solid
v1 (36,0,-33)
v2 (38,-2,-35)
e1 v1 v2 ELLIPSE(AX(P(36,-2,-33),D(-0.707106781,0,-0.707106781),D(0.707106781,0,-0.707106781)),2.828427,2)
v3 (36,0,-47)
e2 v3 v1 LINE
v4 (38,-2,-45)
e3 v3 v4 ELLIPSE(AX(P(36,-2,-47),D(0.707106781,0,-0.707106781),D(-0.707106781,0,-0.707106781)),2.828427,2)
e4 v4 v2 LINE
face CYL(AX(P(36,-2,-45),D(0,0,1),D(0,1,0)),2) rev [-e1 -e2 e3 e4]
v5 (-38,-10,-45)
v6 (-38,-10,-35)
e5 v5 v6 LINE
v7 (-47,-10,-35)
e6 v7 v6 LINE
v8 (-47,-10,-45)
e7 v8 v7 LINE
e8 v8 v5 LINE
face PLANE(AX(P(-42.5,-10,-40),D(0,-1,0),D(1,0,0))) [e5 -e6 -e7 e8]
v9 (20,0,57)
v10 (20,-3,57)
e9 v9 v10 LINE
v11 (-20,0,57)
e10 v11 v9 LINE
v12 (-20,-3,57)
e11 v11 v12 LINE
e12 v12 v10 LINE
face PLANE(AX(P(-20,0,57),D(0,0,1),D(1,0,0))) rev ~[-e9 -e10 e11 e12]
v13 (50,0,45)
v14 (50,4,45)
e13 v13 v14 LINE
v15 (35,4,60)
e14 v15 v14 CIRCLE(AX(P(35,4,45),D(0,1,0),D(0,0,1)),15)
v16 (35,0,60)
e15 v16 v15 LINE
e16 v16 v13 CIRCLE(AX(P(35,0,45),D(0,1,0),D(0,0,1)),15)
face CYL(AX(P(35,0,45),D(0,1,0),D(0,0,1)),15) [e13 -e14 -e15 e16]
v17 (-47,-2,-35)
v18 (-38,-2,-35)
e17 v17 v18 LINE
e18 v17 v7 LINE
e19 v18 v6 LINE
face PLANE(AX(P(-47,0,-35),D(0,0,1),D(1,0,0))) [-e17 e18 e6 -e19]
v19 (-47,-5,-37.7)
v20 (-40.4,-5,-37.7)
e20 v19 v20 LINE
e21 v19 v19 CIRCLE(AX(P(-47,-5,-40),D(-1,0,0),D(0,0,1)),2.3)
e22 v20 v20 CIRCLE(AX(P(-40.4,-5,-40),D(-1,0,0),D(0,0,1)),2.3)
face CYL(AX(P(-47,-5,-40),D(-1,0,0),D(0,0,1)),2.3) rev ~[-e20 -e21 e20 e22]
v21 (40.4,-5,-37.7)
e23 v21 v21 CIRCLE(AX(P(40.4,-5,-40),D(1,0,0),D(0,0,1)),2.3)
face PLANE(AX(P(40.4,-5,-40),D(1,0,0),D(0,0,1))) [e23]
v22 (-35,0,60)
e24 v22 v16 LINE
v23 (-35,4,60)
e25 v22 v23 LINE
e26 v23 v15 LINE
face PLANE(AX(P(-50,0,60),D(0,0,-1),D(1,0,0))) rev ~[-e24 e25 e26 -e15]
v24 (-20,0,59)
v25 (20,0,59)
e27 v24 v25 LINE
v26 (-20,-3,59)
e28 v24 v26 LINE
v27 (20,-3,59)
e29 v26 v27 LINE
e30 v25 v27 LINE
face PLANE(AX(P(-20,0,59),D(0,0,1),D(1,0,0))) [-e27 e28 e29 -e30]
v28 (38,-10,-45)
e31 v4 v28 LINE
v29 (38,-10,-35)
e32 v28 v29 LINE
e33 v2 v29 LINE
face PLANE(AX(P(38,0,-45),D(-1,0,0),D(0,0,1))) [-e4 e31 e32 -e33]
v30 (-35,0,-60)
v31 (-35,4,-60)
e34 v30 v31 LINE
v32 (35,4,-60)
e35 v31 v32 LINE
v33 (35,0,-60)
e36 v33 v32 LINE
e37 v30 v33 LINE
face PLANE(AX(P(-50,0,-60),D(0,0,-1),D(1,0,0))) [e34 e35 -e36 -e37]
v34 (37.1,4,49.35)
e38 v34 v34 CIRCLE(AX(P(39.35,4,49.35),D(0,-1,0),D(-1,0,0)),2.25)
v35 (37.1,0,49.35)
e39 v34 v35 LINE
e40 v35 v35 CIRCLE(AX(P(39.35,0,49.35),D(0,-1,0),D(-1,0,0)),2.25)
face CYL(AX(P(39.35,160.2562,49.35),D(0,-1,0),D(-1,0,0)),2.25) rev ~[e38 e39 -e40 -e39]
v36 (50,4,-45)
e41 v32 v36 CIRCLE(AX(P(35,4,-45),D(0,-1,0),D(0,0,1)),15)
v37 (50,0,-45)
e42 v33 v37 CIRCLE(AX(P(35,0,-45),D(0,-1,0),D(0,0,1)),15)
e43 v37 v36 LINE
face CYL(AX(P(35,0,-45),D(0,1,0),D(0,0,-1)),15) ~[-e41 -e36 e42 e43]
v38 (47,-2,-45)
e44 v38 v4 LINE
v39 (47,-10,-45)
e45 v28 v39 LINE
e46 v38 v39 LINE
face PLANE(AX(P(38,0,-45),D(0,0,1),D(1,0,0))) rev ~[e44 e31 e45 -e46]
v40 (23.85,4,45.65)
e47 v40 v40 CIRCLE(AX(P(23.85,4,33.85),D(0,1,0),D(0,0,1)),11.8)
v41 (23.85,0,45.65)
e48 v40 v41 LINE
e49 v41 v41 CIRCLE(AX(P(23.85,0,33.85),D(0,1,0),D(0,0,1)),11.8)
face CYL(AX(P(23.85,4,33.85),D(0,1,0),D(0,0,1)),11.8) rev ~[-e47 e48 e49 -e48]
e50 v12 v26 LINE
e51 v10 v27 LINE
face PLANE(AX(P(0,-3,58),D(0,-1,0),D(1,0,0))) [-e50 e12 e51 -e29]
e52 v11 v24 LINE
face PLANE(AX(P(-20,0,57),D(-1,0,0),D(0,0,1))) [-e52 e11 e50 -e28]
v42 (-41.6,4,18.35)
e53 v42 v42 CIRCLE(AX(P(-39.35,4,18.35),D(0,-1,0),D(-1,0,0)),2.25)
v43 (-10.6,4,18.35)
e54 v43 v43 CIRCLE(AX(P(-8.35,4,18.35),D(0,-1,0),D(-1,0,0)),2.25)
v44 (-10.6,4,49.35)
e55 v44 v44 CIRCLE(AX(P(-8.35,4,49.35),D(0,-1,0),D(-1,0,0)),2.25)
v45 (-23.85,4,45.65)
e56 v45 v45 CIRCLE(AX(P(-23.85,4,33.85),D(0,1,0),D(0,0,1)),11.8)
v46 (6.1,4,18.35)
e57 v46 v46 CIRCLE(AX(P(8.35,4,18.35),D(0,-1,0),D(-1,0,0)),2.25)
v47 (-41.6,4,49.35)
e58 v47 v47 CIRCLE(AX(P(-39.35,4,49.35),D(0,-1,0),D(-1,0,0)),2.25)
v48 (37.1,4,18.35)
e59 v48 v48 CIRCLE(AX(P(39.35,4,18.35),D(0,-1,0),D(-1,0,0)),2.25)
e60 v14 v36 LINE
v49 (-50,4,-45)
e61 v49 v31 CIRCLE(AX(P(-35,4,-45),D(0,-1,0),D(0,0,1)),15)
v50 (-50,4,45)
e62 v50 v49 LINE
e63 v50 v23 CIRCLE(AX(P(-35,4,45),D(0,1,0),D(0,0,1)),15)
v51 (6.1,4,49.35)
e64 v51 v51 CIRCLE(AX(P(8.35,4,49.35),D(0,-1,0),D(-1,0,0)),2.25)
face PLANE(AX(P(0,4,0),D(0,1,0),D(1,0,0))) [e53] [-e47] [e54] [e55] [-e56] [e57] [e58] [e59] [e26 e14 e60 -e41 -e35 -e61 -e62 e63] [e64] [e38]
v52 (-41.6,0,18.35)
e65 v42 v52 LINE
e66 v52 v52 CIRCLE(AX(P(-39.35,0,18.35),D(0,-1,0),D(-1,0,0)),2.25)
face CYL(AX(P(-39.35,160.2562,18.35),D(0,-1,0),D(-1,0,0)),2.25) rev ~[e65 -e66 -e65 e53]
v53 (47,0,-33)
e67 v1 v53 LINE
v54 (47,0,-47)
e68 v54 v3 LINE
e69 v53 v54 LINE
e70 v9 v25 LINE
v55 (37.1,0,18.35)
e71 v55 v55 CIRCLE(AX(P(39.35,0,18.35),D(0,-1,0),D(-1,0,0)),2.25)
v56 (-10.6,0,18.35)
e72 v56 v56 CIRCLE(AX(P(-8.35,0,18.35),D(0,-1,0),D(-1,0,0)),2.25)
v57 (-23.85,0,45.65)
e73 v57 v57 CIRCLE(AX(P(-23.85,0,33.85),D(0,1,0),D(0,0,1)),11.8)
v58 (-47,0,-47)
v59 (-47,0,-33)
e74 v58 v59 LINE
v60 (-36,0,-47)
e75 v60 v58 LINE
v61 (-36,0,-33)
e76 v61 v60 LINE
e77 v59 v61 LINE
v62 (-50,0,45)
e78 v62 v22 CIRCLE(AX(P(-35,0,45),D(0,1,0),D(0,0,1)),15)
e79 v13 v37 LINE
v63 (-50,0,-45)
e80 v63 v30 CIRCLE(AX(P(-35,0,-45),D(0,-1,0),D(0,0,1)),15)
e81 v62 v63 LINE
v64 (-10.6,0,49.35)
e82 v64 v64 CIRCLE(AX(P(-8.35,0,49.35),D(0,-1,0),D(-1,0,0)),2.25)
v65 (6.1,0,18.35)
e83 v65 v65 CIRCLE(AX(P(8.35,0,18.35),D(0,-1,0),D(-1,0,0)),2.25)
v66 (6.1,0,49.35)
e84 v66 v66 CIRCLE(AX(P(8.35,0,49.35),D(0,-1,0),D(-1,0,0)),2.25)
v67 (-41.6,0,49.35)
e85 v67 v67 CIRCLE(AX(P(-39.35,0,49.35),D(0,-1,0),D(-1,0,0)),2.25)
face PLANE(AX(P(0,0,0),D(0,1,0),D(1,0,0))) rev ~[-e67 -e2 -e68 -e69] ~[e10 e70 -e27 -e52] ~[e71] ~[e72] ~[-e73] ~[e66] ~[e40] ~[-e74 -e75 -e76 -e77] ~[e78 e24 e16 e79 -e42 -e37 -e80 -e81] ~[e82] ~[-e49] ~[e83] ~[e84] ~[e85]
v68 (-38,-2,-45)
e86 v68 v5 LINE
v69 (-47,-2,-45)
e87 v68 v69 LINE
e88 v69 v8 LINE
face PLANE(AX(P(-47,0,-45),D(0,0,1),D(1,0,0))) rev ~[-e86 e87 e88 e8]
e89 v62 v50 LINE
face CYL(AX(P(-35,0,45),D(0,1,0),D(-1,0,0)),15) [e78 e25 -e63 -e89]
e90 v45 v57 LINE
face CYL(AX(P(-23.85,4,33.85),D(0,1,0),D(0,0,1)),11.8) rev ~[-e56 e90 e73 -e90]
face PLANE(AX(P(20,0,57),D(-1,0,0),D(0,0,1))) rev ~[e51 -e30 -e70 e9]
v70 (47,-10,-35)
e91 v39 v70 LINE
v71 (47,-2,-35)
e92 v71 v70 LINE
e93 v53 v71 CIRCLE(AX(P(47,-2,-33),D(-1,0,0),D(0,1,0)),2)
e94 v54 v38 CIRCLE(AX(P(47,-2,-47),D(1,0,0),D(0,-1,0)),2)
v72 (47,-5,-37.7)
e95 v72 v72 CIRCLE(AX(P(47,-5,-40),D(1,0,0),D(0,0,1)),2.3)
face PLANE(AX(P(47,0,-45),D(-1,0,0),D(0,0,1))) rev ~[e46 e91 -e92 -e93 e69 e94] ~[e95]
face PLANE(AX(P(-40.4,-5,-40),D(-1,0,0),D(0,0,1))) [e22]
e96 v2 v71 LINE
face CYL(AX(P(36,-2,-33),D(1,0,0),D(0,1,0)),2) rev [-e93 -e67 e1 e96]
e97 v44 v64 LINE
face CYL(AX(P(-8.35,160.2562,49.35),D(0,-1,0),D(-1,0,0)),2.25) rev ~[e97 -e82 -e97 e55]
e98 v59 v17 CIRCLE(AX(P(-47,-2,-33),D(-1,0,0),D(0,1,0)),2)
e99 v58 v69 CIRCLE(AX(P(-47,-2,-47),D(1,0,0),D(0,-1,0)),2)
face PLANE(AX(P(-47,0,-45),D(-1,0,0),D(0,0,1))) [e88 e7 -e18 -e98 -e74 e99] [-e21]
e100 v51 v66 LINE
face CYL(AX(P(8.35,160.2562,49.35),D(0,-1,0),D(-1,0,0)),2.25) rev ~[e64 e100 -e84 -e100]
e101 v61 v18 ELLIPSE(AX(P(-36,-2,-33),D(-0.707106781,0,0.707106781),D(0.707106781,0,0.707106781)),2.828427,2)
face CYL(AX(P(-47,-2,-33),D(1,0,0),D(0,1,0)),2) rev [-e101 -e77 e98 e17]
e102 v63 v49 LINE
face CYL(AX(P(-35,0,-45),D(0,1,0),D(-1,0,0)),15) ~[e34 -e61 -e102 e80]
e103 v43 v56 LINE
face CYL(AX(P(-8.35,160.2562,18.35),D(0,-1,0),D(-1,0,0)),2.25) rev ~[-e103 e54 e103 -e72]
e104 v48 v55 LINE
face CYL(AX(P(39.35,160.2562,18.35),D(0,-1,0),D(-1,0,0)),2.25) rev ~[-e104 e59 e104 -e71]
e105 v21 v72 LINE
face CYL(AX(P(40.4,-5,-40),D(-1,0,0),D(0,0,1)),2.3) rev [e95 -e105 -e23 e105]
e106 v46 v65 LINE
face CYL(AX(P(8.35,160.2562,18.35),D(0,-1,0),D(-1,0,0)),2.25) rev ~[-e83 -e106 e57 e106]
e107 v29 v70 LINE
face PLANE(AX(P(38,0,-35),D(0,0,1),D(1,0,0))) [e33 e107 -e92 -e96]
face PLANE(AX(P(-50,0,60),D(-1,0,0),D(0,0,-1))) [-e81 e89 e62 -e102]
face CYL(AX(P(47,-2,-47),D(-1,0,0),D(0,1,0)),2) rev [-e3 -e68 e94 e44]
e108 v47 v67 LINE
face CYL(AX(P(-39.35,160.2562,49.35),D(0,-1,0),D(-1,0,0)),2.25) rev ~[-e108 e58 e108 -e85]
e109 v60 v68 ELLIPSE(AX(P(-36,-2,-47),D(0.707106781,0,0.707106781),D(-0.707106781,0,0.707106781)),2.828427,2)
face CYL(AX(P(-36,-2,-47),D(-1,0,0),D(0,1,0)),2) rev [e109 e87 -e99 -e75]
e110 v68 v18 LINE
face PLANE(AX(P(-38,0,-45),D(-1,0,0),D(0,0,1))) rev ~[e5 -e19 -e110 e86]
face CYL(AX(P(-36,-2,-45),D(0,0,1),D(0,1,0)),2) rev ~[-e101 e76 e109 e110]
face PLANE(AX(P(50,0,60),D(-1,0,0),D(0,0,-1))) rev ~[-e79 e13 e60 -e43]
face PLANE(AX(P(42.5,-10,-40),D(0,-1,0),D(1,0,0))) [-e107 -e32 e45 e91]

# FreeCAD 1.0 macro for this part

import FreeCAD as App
import Part
import Sketcher
from FreeCAD import Vector


def edges_at(feature, points):
    """Names of the edges that pass closest to the given points."""
    edges = feature.Shape.Edges
    near = lambda p: min(range(len(edges)), key=lambda i: edges[i].distToShape(Part.Vertex(*p))[0])
    return sorted({f"Edge{near(p) + 1}" for p in points})


def add_polygon(sketch, points):
    """Adds a closed chain of lines whose ends are joined by coincident constraints."""
    first, n = sketch.GeometryCount, len(points)
    for a, b in zip(points, points[1:] + points[:1]):
        sketch.addGeometry(Part.LineSegment(App.Vector(*a, 0), App.Vector(*b, 0)), False)
    for i in range(n):
        sketch.addConstraint(Sketcher.Constraint("Coincident", first + i, 2, first + (i + 1) % n, 1))

doc = App.newDocument("Part")
params = doc.addObject("Spreadsheet::Sheet", "Params")
for row, (alias, value) in enumerate([
    ("sketch1_width", "100 mm"),
    ("sketch1_height", "120 mm"),
    ("pad1_length", "4 mm"),
    ("sketch2_diameter", "4.5 mm"),
    ("hole_diameter", "4.5 mm"),
    ("sketch3_diameter", "23.6 mm"),
    ("fillet_radius", "15 mm"),
    ("sketch4_width", "9 mm"),
    ("sketch4_height", "10 mm"),
    ("pad2_length", "10 mm"),
    ("sketch5_width", "40 mm"),
    ("sketch5_height", "2 mm"),
    ("pad3_length", "3 mm"),
    ("sketch6_diameter", "4.6 mm"),
    ("pocket2_length", "6.6 mm"),
    ("sketch7_diameter", "4.6 mm"),
    ("pocket3_length", "6.6 mm"),
    ("fillet2_radius", "2 mm"),
    ("fillet3_radius", "2 mm"),
    ("fillet4_radius", "2 mm"),
    ("fillet5_radius", "2 mm"),
    ("fillet6_radius", "2 mm"),
    ("fillet7_radius", "2 mm"),
], start=1):
    params.set(f"A{row}", alias)
    params.set(f"B{row}", "=" + value)
    params.setAlias(f"B{row}", alias)

body = doc.addObject("PartDesign::Body", "Body")

# Sketch on XZ plane
sketch1 = body.newObject("Sketcher::SketchObject", "Sketch")
sketch1.AttachmentSupport = (doc.getObject("XZ_Plane"), [""])
sketch1.MapMode = "FlatFace"
add_polygon(sketch1, [(-50, -60), (-50, 60), (50, 60), (50, -60)])  # lines 0-3
sketch1.addConstraint([
    Sketcher.Constraint("Vertical", 0),
    Sketcher.Constraint("Horizontal", 1),
    Sketcher.Constraint("Vertical", 2),
    Sketcher.Constraint("Horizontal", 3),
    Sketcher.Constraint("Symmetric", 0, 2, 2, 2, -1, 1),
    Sketcher.Constraint("DistanceX", 1, 1, 1, 2, 100.0),
    Sketcher.Constraint("DistanceY", 0, 1, 0, 2, 120.0),
])
sketch1.setExpression("Constraints[9]", "Params.sketch1_width")
sketch1.setExpression("Constraints[10]", "Params.sketch1_height")
pad1 = body.newObject("PartDesign::Pad", "Pad")
pad1.Profile = sketch1
pad1.setExpression("Length", "Params.pad1_length")
pad1.Reversed = True

# Sketch on XZ plane
sketch2 = body.newObject("Sketcher::SketchObject", "Sketch001")
sketch2.AttachmentSupport = (doc.getObject("XZ_Plane"), [""])
sketch2.MapMode = "FlatFace"
sketch2.AttachmentOffset = App.Placement(Vector(0, 0, -4), App.Rotation())
sketch2.addGeometry([
    Part.Circle(Vector(-8.35, 18.35, 0), Vector(0, 0, 1), 2.25),  # 0
    Part.Circle(Vector(-39.35, 18.35, 0), Vector(0, 0, 1), 2.25),  # 1
    Part.Circle(Vector(-39.35, 49.35, 0), Vector(0, 0, 1), 2.25),  # 2
    Part.Circle(Vector(-8.35, 49.35, 0), Vector(0, 0, 1), 2.25),  # 3
    Part.Circle(Vector(8.35, 18.35, 0), Vector(0, 0, 1), 2.25),  # 4
    Part.Circle(Vector(39.35, 18.35, 0), Vector(0, 0, 1), 2.25),  # 5
    Part.Circle(Vector(39.35, 49.35, 0), Vector(0, 0, 1), 2.25),  # 6
    Part.Circle(Vector(8.35, 49.35, 0), Vector(0, 0, 1), 2.25),  # 7
], False)
sketch2.addConstraint([
    Sketcher.Constraint("Equal", 0, 1),
    Sketcher.Constraint("Equal", 1, 2),
    Sketcher.Constraint("Equal", 2, 3),
    Sketcher.Constraint("Equal", 3, 4),
    Sketcher.Constraint("Equal", 4, 5),
    Sketcher.Constraint("Equal", 5, 6),
    Sketcher.Constraint("Equal", 6, 7),
    Sketcher.Constraint("Symmetric", 0, 3, 4, 3, -2),
    Sketcher.Constraint("Symmetric", 1, 3, 5, 3, -2),
    Sketcher.Constraint("Symmetric", 2, 3, 6, 3, -2),
    Sketcher.Constraint("Symmetric", 3, 3, 7, 3, -2),
    Sketcher.Constraint("Horizontal", 0, 3, 1, 3),
    Sketcher.Constraint("Horizontal", 2, 3, 3, 3),
    Sketcher.Constraint("Vertical", 1, 3, 2, 3),
    Sketcher.Constraint("Vertical", 0, 3, 3, 3),
    Sketcher.Constraint("Diameter", 0, 4.5),
    Sketcher.Constraint("DistanceX", 1, 3, 0, 3, 31.0),
    Sketcher.Constraint("DistanceY", 1, 3, 2, 3, 31.0),
    Sketcher.Constraint("DistanceX", 0, 3, 4, 3, 16.7),
    Sketcher.Constraint("DistanceY", -1, 1, 0, 3, 18.35),
])
sketch2.setExpression("Constraints[15]", "Params.sketch2_diameter")
doc.recompute()
hole = body.newObject("PartDesign::Hole", "Hole")
hole.Profile = sketch2
hole.ThreadType = "None"
hole.setExpression("Diameter", "Params.hole_diameter")
hole.DepthType = "ThroughAll"
hole.Reversed = True

# Sketch on XZ plane
sketch3 = body.newObject("Sketcher::SketchObject", "Sketch002")
sketch3.AttachmentSupport = (doc.getObject("XZ_Plane"), [""])
sketch3.MapMode = "FlatFace"
sketch3.AttachmentOffset = App.Placement(Vector(0, 0, -4), App.Rotation())
sketch3.addGeometry([
    Part.Circle(Vector(-23.85, 33.85, 0), Vector(0, 0, 1), 11.8),
    Part.Circle(Vector(23.85, 33.85, 0), Vector(0, 0, 1), 11.8),
], False)
sketch3.addConstraint([
    Sketcher.Constraint("Equal", 0, 1),
    Sketcher.Constraint("Symmetric", 0, 3, 1, 3, -2),
    Sketcher.Constraint("Diameter", 0, 23.6),
    Sketcher.Constraint("DistanceX", 0, 3, 1, 3, 47.7),
    Sketcher.Constraint("DistanceY", -1, 1, 0, 3, 33.85),
])
sketch3.setExpression("Constraints[2]", "Params.sketch3_diameter")
pocket1 = body.newObject("PartDesign::Pocket", "Pocket")
pocket1.Profile = sketch3
pocket1.Type = "ThroughAll"
pocket1.Reversed = True
doc.recompute()

fillet = body.newObject("PartDesign::Fillet", "Fillet")
fillet.Base = (pocket1, edges_at(pocket1, [
    (50, 2, 60),
    (-50, 2, 60),
    (-50, 2, -60),
    (50, 2, -60),
]))
fillet.setExpression("Radius", "Params.fillet_radius")

# Sketch on XZ plane
sketch4 = body.newObject("Sketcher::SketchObject", "Sketch003")
sketch4.AttachmentSupport = (doc.getObject("XZ_Plane"), [""])
sketch4.MapMode = "FlatFace"
add_polygon(sketch4, [(-47, -35), (-47, -45), (-38, -45), (-38, -35)])  # lines 0-3
add_polygon(sketch4, [(38, -35), (38, -45), (47, -45), (47, -35)])  # lines 4-7
sketch4.addConstraint([
    Sketcher.Constraint("Vertical", 0),
    Sketcher.Constraint("Horizontal", 1),
    Sketcher.Constraint("Vertical", 2),
    Sketcher.Constraint("Horizontal", 3),
    Sketcher.Constraint("Vertical", 4),
    Sketcher.Constraint("Horizontal", 5),
    Sketcher.Constraint("Vertical", 6),
    Sketcher.Constraint("Horizontal", 7),
    Sketcher.Constraint("Symmetric", 1, 2, 4, 2, -2),
    Sketcher.Constraint("Symmetric", 3, 2, 6, 2, -2),
    Sketcher.Constraint("DistanceX", 1, 1, 1, 2, 9.0),
    Sketcher.Constraint("DistanceY", 0, 2, 0, 1, 10.0),
    Sketcher.Constraint("DistanceX", 0, 2, -1, 1, 47.0),
    Sketcher.Constraint("DistanceY", 0, 2, -1, 1, 45.0),
])
sketch4.setExpression("Constraints[18]", "Params.sketch4_width")
sketch4.setExpression("Constraints[19]", "Params.sketch4_height")
pad2 = body.newObject("PartDesign::Pad", "Pad001")
pad2.Profile = sketch4
pad2.setExpression("Length", "Params.pad2_length")

# Sketch on XZ plane
sketch5 = body.newObject("Sketcher::SketchObject", "Sketch004")
sketch5.AttachmentSupport = (doc.getObject("XZ_Plane"), [""])
sketch5.MapMode = "FlatFace"
add_polygon(sketch5, [(-20, 59), (-20, 57), (20, 57), (20, 59)])  # lines 0-3
sketch5.addConstraint([
    Sketcher.Constraint("Vertical", 0),
    Sketcher.Constraint("Horizontal", 1),
    Sketcher.Constraint("Vertical", 2),
    Sketcher.Constraint("Horizontal", 3),
    Sketcher.Constraint("DistanceX", 1, 1, 1, 2, 40.0),
    Sketcher.Constraint("DistanceY", 0, 2, 0, 1, 2.0),
    Sketcher.Constraint("DistanceX", 0, 2, -1, 1, 20.0),
    Sketcher.Constraint("DistanceY", -1, 1, 0, 2, 57.0),
])
sketch5.setExpression("Constraints[8]", "Params.sketch5_width")
sketch5.setExpression("Constraints[9]", "Params.sketch5_height")
pad3 = body.newObject("PartDesign::Pad", "Pad002")
pad3.Profile = sketch5
pad3.setExpression("Length", "Params.pad3_length")

# Sketch on YZ plane
sketch6 = body.newObject("Sketcher::SketchObject", "Sketch005")
sketch6.AttachmentSupport = (doc.getObject("YZ_Plane"), [""])
sketch6.MapMode = "FlatFace"
sketch6.AttachmentOffset = App.Placement(Vector(0, 0, -47), App.Rotation())
sketch6.addGeometry(Part.Circle(Vector(-5, -40, 0), Vector(0, 0, 1), 2.3), False)
sketch6.addConstraint([
    Sketcher.Constraint("Diameter", 0, 4.6),
    Sketcher.Constraint("DistanceX", 0, 3, -1, 1, 5.0),
    Sketcher.Constraint("DistanceY", 0, 3, -1, 1, 40.0),
])
sketch6.setExpression("Constraints[0]", "Params.sketch6_diameter")
pocket2 = body.newObject("PartDesign::Pocket", "Pocket001")
pocket2.Profile = sketch6
pocket2.setExpression("Length", "Params.pocket2_length")
pocket2.Reversed = True

# Sketch on YZ plane
sketch7 = body.newObject("Sketcher::SketchObject", "Sketch006")
sketch7.AttachmentSupport = (doc.getObject("YZ_Plane"), [""])
sketch7.MapMode = "FlatFace"
sketch7.AttachmentOffset = App.Placement(Vector(0, 0, 40.4), App.Rotation())
sketch7.addGeometry(Part.Circle(Vector(-5, -40, 0), Vector(0, 0, 1), 2.3), False)
sketch7.addConstraint([
    Sketcher.Constraint("Diameter", 0, 4.6),
    Sketcher.Constraint("DistanceX", 0, 3, -1, 1, 5.0),
    Sketcher.Constraint("DistanceY", 0, 3, -1, 1, 40.0),
])
sketch7.setExpression("Constraints[0]", "Params.sketch7_diameter")
pocket3 = body.newObject("PartDesign::Pocket", "Pocket002")
pocket3.Profile = sketch7
pocket3.setExpression("Length", "Params.pocket3_length")
pocket3.Reversed = True
doc.recompute()

fillet2 = body.newObject("PartDesign::Fillet", "Fillet001")
fillet2.Base = (pocket3, edges_at(pocket3, [(38, 0, -40)]))
fillet2.setExpression("Radius", "Params.fillet2_radius")
doc.recompute()

fillet3 = body.newObject("PartDesign::Fillet", "Fillet002")
fillet3.Base = (fillet2, edges_at(fillet2, [(-38, 0, -40)]))
fillet3.setExpression("Radius", "Params.fillet3_radius")
doc.recompute()

fillet4 = body.newObject("PartDesign::Fillet", "Fillet003")
fillet4.Base = (fillet3, edges_at(fillet3, [(41.5, 0, -35)]))
fillet4.setExpression("Radius", "Params.fillet4_radius")
doc.recompute()

fillet5 = body.newObject("PartDesign::Fillet", "Fillet004")
fillet5.Base = (fillet4, edges_at(fillet4, [(-41.5, 0, -35)]))
fillet5.setExpression("Radius", "Params.fillet5_radius")
doc.recompute()

fillet6 = body.newObject("PartDesign::Fillet", "Fillet005")
fillet6.Base = (fillet5, edges_at(fillet5, [(41.5, 0, -45)]))
fillet6.setExpression("Radius", "Params.fillet6_radius")
doc.recompute()

fillet7 = body.newObject("PartDesign::Fillet", "Fillet006")
fillet7.Base = (fillet6, edges_at(fillet6, [(-41.5, 0, -45)]))
fillet7.setExpression("Radius", "Params.fillet7_radius")

doc.recompute()
